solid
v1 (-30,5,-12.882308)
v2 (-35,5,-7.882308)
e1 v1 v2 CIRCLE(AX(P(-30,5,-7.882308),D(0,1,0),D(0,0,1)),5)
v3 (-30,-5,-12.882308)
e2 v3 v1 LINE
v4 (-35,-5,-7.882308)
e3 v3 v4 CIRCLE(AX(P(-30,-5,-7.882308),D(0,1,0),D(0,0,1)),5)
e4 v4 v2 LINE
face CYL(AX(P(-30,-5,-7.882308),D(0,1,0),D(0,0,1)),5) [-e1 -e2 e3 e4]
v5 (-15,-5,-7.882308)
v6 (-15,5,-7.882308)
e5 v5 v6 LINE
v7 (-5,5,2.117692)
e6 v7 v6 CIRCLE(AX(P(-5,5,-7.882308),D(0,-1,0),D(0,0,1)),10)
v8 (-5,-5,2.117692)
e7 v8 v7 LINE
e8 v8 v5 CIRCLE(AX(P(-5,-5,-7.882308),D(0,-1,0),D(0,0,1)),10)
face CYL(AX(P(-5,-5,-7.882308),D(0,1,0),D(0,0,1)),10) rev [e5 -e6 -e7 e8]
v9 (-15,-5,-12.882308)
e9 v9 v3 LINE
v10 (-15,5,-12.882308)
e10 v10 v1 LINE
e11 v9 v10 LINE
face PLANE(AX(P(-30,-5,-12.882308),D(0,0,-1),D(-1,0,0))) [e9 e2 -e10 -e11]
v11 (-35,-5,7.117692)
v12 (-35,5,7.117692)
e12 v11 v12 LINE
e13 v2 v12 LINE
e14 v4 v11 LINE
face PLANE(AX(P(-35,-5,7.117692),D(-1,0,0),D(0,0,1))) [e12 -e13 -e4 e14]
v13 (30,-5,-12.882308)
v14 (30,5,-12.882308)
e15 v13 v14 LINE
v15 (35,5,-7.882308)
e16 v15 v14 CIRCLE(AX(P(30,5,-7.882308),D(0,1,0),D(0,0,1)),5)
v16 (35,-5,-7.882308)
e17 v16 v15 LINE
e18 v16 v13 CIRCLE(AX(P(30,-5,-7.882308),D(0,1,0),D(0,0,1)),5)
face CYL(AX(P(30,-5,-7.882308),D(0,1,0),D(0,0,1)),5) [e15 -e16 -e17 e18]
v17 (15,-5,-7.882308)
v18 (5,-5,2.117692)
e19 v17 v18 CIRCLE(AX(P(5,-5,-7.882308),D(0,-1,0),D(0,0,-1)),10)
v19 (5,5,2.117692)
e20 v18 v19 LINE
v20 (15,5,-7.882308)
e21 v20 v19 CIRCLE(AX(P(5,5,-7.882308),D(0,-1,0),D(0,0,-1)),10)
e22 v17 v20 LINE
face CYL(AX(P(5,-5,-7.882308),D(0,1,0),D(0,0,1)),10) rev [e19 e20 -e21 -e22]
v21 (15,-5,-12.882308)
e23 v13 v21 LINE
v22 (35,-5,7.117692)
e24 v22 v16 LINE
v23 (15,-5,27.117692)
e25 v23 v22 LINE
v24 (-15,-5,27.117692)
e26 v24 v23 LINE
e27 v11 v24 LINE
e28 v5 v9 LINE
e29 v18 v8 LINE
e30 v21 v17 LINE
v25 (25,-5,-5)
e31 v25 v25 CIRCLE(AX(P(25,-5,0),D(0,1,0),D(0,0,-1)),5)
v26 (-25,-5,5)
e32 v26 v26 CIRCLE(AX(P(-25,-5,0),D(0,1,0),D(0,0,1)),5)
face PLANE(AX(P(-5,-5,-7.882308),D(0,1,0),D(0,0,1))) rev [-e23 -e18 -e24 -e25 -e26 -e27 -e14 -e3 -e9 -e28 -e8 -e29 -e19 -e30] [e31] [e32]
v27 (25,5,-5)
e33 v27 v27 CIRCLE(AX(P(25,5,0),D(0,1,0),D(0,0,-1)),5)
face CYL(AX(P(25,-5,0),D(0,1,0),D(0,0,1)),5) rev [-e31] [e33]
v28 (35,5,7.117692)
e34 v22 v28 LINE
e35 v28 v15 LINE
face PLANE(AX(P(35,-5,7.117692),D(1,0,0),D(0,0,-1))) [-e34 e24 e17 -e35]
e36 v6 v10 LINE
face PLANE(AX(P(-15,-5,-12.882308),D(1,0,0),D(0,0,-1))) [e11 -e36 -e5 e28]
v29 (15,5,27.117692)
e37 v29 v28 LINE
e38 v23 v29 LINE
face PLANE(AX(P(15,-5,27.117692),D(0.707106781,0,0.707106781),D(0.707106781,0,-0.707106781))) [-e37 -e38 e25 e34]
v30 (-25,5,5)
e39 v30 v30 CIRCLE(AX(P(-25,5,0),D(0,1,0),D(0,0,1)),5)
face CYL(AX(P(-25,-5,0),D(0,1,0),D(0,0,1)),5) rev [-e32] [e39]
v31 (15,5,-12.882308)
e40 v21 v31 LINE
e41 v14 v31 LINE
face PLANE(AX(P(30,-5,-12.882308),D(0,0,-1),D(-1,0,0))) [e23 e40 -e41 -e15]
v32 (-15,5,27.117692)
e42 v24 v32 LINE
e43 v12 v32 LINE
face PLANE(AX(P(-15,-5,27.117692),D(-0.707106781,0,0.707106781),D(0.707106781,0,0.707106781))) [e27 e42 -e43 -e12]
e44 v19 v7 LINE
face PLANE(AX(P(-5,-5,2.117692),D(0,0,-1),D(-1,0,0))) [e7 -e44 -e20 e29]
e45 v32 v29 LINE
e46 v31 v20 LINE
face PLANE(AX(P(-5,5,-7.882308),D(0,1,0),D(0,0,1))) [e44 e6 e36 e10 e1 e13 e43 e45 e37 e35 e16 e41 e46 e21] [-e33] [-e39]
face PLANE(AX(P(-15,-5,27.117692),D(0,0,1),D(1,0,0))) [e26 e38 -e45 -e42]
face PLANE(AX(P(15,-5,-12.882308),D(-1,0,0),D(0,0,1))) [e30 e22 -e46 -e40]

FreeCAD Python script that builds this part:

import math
import FreeCAD as App
import Part
import Sketcher
from FreeCAD import Vector
Q = App.Units.Quantity

doc = App.newDocument("Part")
body = doc.addObject("PartDesign::Body", "Body")

# Sketch on XZ plane
sketch1 = body.newObject("Sketcher::SketchObject", "Sketch")
sketch1.AttachmentSupport = (doc.getObject("XZ_Plane"), [""])
sketch1.MapMode = "FlatFace"
sketch1.addGeometry([
    Part.LineSegment(Vector(-15, -12.882308, 0), Vector(-30, -12.882308, 0)),  # 0
    Part.ArcOfCircle(Part.Circle(Vector(-30, -7.882308, 0), Vector(0, 0, 1), 5), math.radians(180), math.radians(270)),  # 1
    Part.LineSegment(Vector(-35, -7.882308, 0), Vector(-35, 7.117692, 0)),  # 2
    Part.LineSegment(Vector(-35, 7.117692, 0), Vector(-15, 27.117692, 0)),  # 3
    Part.LineSegment(Vector(-15, 27.117692, 0), Vector(15, 27.117692, 0)),  # 4
    Part.LineSegment(Vector(15, 27.117692, 0), Vector(35, 7.117692, 0)),  # 5
    Part.LineSegment(Vector(35, 7.117692, 0), Vector(35, -7.882308, 0)),  # 6
    Part.ArcOfCircle(Part.Circle(Vector(30, -7.882308, 0), Vector(0, 0, 1), 5), math.radians(-90), math.radians(0)),  # 7
    Part.LineSegment(Vector(30, -12.882308, 0), Vector(15, -12.882308, 0)),  # 8
    Part.LineSegment(Vector(15, -12.882308, 0), Vector(15, -7.882308, 0)),  # 9
    Part.ArcOfCircle(Part.Circle(Vector(5, -7.882308, 0), Vector(0, 0, 1), 10), math.radians(0), math.radians(90)),  # 10
    Part.LineSegment(Vector(5, 2.117692, 0), Vector(-5, 2.117692, 0)),  # 11
    Part.ArcOfCircle(Part.Circle(Vector(-5, -7.882308, 0), Vector(0, 0, 1), 10), math.radians(90), math.radians(180)),  # 12
    Part.LineSegment(Vector(-15, -7.882308, 0), Vector(-15, -12.882308, 0)),  # 13
    Part.Circle(Vector(25, 0, 0), Vector(0, 0, 1), 5),  # 14
    Part.Circle(Vector(-25, 0, 0), Vector(0, 0, 1), 5),  # 15
], False)
sketch1.addConstraint([
    Sketcher.Constraint("Tangent", 0, 2, 1, 2),
    Sketcher.Constraint("Tangent", 1, 1, 2, 1),
    Sketcher.Constraint("Coincident", 2, 2, 3, 1),
    Sketcher.Constraint("Coincident", 3, 2, 4, 1),
    Sketcher.Constraint("Coincident", 4, 2, 5, 1),
    Sketcher.Constraint("Coincident", 5, 2, 6, 1),
    Sketcher.Constraint("Tangent", 6, 2, 7, 2),
    Sketcher.Constraint("Tangent", 7, 1, 8, 1),
    Sketcher.Constraint("Coincident", 8, 2, 9, 1),
    Sketcher.Constraint("Tangent", 9, 2, 10, 1),
    Sketcher.Constraint("Tangent", 10, 2, 11, 1),
    Sketcher.Constraint("Tangent", 11, 2, 12, 1),
    Sketcher.Constraint("Tangent", 12, 2, 13, 1),
    Sketcher.Constraint("Coincident", 13, 2, 0, 1),
    Sketcher.Constraint("Horizontal", 0),
    Sketcher.Constraint("Vertical", 2),
    Sketcher.Constraint("Horizontal", 4),
    Sketcher.Constraint("Vertical", 6),
    Sketcher.Constraint("Horizontal", 8),
    Sketcher.Constraint("Vertical", 9),
    Sketcher.Constraint("Horizontal", 11),
    Sketcher.Constraint("Vertical", 13),
    Sketcher.Constraint("Equal", 1, 7),
    Sketcher.Constraint("Equal", 10, 12),
    Sketcher.Constraint("Equal", 7, 14),
    Sketcher.Constraint("Equal", 14, 15),
    Sketcher.Constraint("Symmetric", 14, 3, 15, 3, -1, 1),
    Sketcher.Constraint("Symmetric", 1, 3, 7, 3, -2),
    Sketcher.Constraint("PointOnObject", 14, 3, -1),
    Sketcher.Constraint("Perpendicular", 3, 5),
    Sketcher.Constraint("Horizontal", 7, 3, 10, 3),
    Sketcher.Constraint("Horizontal", 2, 2, 5, 2),
    Sketcher.Constraint("Vertical", 4, 2, 8, 2),
    Sketcher.Constraint("Vertical", 3, 2, 12, 2),
    Sketcher.Constraint("Equal", 0, 8),
    Sketcher.Constraint("Equal", 8, 2),
    Sketcher.Constraint("Diameter", 14, Q("10 mm")),
    Sketcher.Constraint("Radius", 10, Q("10 mm")),
    Sketcher.Constraint("DistanceX", 0, 2, 0, 1, Q("15 mm")),
    Sketcher.Constraint("DistanceX", 4, 1, 4, 2, Q("30 mm")),
    Sketcher.Constraint("DistanceX", -1, 1, 14, 3, Q("25 mm")),
    Sketcher.Constraint("DistanceY", 1, 3, -1, 1, Q("7.882308 mm")),
])
pad1 = body.newObject("PartDesign::Pad", "Pad")
pad1.Profile = sketch1
pad1.Type = "TwoLengths"
pad1.Length = 5
pad1.Length2 = 5
pad1.Reversed = True

doc.recompute()
